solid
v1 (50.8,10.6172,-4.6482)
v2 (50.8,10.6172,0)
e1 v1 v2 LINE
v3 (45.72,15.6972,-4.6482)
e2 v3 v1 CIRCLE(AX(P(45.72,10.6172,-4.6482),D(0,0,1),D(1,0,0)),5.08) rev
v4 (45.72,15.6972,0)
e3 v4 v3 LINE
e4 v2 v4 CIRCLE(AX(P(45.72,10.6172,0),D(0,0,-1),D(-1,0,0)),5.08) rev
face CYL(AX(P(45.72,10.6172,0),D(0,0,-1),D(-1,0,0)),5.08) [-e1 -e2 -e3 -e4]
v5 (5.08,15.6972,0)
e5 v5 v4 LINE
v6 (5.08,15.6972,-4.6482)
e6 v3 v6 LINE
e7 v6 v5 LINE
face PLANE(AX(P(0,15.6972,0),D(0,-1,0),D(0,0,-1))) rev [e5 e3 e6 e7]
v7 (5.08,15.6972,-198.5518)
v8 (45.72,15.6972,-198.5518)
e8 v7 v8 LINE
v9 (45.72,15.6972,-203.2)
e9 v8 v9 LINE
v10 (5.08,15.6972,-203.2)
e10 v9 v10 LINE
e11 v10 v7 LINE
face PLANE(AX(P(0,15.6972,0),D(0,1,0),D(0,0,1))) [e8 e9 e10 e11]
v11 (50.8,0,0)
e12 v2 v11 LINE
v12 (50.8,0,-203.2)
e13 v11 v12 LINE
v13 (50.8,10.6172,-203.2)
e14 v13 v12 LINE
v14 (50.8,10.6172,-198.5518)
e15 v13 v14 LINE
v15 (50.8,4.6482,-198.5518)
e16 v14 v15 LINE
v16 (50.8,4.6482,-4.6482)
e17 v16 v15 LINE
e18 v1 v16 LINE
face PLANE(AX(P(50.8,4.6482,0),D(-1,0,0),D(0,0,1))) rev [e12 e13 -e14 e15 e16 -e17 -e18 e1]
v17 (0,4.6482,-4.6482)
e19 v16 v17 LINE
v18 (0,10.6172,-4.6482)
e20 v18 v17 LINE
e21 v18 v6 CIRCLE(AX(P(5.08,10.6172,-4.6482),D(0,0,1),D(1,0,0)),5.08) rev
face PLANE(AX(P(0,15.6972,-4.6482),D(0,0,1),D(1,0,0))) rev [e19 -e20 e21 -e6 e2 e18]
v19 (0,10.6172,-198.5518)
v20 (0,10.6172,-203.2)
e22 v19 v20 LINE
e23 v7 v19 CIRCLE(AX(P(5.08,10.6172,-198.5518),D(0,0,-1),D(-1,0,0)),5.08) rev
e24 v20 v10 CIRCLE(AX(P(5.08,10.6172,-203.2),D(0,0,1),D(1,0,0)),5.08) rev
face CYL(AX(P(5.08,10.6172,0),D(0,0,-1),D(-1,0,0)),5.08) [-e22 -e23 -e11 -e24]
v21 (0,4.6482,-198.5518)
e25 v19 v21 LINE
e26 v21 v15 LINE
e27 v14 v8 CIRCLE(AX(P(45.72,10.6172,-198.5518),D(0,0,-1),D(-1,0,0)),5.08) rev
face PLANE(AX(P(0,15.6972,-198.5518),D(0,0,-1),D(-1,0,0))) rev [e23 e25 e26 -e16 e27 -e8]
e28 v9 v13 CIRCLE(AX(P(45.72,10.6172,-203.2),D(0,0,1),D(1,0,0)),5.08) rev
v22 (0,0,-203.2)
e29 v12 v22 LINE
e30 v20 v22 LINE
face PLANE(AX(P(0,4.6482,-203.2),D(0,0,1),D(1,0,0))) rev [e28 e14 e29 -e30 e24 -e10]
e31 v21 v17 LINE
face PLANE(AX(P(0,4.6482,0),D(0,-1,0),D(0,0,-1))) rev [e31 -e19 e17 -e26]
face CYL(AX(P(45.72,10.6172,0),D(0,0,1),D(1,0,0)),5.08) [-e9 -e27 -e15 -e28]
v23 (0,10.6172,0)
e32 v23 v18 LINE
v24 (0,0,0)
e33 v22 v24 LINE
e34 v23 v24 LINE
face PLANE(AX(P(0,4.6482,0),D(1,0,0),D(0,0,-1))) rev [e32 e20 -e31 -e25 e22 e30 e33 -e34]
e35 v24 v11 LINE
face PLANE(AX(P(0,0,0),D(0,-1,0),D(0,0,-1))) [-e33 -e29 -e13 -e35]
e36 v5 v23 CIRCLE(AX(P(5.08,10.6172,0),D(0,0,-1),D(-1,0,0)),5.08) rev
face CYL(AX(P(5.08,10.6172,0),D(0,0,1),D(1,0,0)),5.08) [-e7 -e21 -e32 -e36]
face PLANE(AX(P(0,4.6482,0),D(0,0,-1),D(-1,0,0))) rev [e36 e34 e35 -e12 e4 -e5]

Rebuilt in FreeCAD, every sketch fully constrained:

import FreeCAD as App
import Part
import Sketcher
Q = App.Units.Quantity


def edges_at(feature, points):
    """Names of the edges that pass closest to the given points."""
    edges = feature.Shape.Edges
    near = lambda p: min(range(len(edges)), key=lambda i: edges[i].distToShape(Part.Vertex(*p))[0])
    return sorted({f"Edge{near(p) + 1}" for p in points})

doc = App.newDocument("Part")
body = doc.addObject("PartDesign::Body", "Body")

# Sketch on XZ plane
sketch1 = body.newObject("Sketcher::SketchObject", "Sketch")
sketch1.AttachmentSupport = (doc.getObject("XZ_Plane"), [""])
sketch1.MapMode = "FlatFace"
sketch1.addGeometry(Part.LineSegment(App.Vector(0, -203, 0), App.Vector(0, 0, 0)), False)
sketch1.addGeometry(Part.LineSegment(App.Vector(0, 0, 0), App.Vector(51, 0, 0)), False)
sketch1.addGeometry(Part.LineSegment(App.Vector(51, 0, 0), App.Vector(51, -203, 0)), False)
sketch1.addGeometry(Part.LineSegment(App.Vector(51, -203, 0), App.Vector(0, -203, 0)), False)
sketch1.addConstraint(Sketcher.Constraint("Coincident", 0, 2, 1, 1))
sketch1.addConstraint(Sketcher.Constraint("Coincident", 1, 2, 2, 1))
sketch1.addConstraint(Sketcher.Constraint("Coincident", 2, 2, 3, 1))
sketch1.addConstraint(Sketcher.Constraint("Coincident", 3, 2, 0, 1))
sketch1.addConstraint(Sketcher.Constraint("Vertical", 0))
sketch1.addConstraint(Sketcher.Constraint("Horizontal", 1))
sketch1.addConstraint(Sketcher.Constraint("Vertical", 2))
sketch1.addConstraint(Sketcher.Constraint("Horizontal", 3))
sketch1.addConstraint(Sketcher.Constraint("Coincident", 0, 2, -1, 1))
sketch1.addConstraint(Sketcher.Constraint("DistanceX", 1, 1, 1, 2, Q("2 in")))
sketch1.addConstraint(Sketcher.Constraint("DistanceY", 0, 1, 0, 2, Q("8 in")))
pad1 = body.newObject("PartDesign::Pad", "Pad")
pad1.Profile = sketch1
pad1.Length = Q("0.183 in")
pad1.Reversed = True

# Sketch on XZ plane
sketch2 = body.newObject("Sketcher::SketchObject", "Sketch001")
sketch2.AttachmentSupport = (doc.getObject("XZ_Plane"), [""])
sketch2.MapMode = "FlatFace"
sketch2.AttachmentOffset = App.Placement(App.Vector(0, 0, -0.183 * 25.4), App.Rotation())
sketch2.addGeometry(Part.LineSegment(App.Vector(0, -4.6, 0), App.Vector(0, 0, 0)), False)
sketch2.addGeometry(Part.LineSegment(App.Vector(0, 0, 0), App.Vector(50.8, 0, 0)), False)
sketch2.addGeometry(Part.LineSegment(App.Vector(50.8, 0, 0), App.Vector(50.8, -4.6, 0)), False)
sketch2.addGeometry(Part.LineSegment(App.Vector(50.8, -4.6, 0), App.Vector(0, -4.6, 0)), False)
sketch2.addGeometry(Part.LineSegment(App.Vector(0, -203.2, 0), App.Vector(0, -198.6, 0)), False)
sketch2.addGeometry(Part.LineSegment(App.Vector(0, -198.6, 0), App.Vector(50.8, -198.6, 0)), False)
sketch2.addGeometry(Part.LineSegment(App.Vector(50.8, -198.6, 0), App.Vector(50.8, -203.2, 0)), False)
sketch2.addGeometry(Part.LineSegment(App.Vector(50.8, -203.2, 0), App.Vector(0, -203.2, 0)), False)
sketch2.addConstraint(Sketcher.Constraint("Coincident", 0, 2, 1, 1))
sketch2.addConstraint(Sketcher.Constraint("Coincident", 1, 2, 2, 1))
sketch2.addConstraint(Sketcher.Constraint("Coincident", 2, 2, 3, 1))
sketch2.addConstraint(Sketcher.Constraint("Coincident", 3, 2, 0, 1))
sketch2.addConstraint(Sketcher.Constraint("Coincident", 4, 2, 5, 1))
sketch2.addConstraint(Sketcher.Constraint("Coincident", 5, 2, 6, 1))
sketch2.addConstraint(Sketcher.Constraint("Coincident", 6, 2, 7, 1))
sketch2.addConstraint(Sketcher.Constraint("Coincident", 7, 2, 4, 1))
sketch2.addConstraint(Sketcher.Constraint("Vertical", 0))
sketch2.addConstraint(Sketcher.Constraint("Horizontal", 1))
sketch2.addConstraint(Sketcher.Constraint("Vertical", 2))
sketch2.addConstraint(Sketcher.Constraint("Horizontal", 3))
sketch2.addConstraint(Sketcher.Constraint("Vertical", 4))
sketch2.addConstraint(Sketcher.Constraint("Horizontal", 5))
sketch2.addConstraint(Sketcher.Constraint("Vertical", 6))
sketch2.addConstraint(Sketcher.Constraint("Horizontal", 7))
sketch2.addConstraint(Sketcher.Constraint("Coincident", 0, 2, -1, 1))
sketch2.addConstraint(Sketcher.Constraint("PointOnObject", 4, 2, -2))
sketch2.addConstraint(Sketcher.Constraint("Vertical", 2, 2, 5, 2))
sketch2.addConstraint(Sketcher.Constraint("Equal", 2, 4))
sketch2.addConstraint(Sketcher.Constraint("DistanceX", 1, 1, 1, 2, Q("2 in")))
sketch2.addConstraint(Sketcher.Constraint("DistanceY", 6, 2, -1, 1, Q("8 in")))
sketch2.addConstraint(Sketcher.Constraint("DistanceY", 0, 1, 0, 2, Q("0.183 in")))
pad2 = body.newObject("PartDesign::Pad", "Pad001")
pad2.Profile = sketch2
pad2.Length = Q("0.435 in")
pad2.Reversed = True
doc.recompute()

fillet = body.newObject("PartDesign::Fillet", "Fillet")
fillet.Base = (pad2, edges_at(pad2, [
    (0, 15.697, -2.324),
    (50.8, 15.697, -2.324),
    (0, 15.697, -200.876),
    (50.8, 15.697, -200.876),
]))
fillet.Radius = Q("0.2 in")

doc.recompute()
